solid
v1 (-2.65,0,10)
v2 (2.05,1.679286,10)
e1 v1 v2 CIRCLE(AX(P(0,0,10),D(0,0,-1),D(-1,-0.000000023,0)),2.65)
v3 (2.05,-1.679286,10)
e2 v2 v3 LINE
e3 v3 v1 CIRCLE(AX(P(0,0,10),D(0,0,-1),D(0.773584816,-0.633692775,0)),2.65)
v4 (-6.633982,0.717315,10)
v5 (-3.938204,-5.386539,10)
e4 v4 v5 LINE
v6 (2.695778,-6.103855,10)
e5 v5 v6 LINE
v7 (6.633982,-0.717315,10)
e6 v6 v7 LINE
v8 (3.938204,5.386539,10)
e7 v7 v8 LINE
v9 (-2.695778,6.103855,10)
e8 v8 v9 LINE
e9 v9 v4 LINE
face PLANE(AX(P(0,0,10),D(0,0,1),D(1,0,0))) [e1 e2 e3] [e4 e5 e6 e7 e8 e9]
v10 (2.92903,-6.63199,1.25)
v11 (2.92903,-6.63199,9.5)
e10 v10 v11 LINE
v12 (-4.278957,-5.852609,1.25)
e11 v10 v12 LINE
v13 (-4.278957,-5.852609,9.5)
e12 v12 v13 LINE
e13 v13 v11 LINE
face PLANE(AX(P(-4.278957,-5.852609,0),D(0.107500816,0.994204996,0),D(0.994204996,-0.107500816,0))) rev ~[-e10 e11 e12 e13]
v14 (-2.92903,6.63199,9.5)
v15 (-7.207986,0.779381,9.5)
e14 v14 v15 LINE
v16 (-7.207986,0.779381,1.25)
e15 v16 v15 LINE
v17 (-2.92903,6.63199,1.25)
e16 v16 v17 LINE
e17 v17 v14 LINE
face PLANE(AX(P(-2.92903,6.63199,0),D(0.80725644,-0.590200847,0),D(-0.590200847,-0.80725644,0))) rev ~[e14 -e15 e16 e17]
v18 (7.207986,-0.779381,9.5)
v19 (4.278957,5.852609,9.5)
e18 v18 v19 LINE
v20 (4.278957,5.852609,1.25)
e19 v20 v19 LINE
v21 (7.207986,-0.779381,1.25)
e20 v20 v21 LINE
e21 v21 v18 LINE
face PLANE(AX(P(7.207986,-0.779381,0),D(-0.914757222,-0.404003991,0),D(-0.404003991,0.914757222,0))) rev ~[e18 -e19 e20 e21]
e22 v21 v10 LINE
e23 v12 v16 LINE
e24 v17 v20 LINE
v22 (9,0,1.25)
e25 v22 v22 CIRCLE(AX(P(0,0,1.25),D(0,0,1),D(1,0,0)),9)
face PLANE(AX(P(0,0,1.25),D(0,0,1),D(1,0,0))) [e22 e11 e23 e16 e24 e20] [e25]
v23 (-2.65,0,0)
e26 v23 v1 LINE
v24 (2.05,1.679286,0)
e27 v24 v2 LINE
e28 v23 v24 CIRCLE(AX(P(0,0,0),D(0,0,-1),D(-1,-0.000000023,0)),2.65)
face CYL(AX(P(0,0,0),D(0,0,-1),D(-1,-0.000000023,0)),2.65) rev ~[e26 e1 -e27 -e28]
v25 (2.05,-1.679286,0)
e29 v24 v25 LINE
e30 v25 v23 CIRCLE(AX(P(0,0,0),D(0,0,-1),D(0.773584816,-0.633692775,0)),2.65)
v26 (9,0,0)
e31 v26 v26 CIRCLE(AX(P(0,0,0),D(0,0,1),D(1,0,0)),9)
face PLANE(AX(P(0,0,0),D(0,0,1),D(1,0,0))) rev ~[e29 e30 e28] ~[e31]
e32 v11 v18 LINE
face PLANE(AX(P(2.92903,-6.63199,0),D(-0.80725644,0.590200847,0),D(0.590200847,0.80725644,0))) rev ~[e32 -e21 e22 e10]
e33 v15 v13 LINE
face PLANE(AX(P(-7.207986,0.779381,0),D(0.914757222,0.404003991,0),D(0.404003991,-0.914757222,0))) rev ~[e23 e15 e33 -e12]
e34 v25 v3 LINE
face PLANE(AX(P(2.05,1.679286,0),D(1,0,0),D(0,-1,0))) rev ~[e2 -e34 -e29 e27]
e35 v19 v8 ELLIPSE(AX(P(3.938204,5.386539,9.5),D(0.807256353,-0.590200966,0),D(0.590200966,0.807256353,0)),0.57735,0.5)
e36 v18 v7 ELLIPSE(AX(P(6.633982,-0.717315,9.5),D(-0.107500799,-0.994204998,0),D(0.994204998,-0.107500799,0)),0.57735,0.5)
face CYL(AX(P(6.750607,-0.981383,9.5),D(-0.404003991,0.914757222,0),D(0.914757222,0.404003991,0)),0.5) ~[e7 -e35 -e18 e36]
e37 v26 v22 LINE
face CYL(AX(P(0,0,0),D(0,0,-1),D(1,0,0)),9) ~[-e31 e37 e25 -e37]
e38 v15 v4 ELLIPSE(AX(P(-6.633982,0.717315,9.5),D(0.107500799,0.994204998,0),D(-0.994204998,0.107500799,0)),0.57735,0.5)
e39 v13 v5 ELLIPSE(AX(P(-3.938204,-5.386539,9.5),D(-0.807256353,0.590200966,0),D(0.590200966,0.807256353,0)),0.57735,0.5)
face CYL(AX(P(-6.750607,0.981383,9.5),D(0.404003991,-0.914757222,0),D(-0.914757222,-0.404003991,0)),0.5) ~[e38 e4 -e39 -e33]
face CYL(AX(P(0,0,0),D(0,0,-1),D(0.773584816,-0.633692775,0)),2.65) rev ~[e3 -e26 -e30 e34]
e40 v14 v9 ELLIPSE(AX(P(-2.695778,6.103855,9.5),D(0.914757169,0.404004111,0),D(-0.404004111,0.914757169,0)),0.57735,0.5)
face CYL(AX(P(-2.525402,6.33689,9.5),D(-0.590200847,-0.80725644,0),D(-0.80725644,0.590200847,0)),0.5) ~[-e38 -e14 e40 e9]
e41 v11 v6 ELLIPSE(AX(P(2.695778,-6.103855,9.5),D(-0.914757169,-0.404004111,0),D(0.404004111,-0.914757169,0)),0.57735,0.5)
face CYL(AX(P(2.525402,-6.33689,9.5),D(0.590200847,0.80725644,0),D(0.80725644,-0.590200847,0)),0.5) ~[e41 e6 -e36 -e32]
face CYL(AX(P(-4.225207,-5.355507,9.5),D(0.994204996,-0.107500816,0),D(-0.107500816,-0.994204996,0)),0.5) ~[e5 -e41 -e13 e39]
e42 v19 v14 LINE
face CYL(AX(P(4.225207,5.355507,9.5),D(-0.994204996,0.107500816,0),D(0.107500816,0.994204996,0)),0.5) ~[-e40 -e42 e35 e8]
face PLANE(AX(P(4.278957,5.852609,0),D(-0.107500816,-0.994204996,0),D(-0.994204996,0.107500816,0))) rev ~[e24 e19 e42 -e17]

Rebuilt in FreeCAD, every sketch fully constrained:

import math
import FreeCAD as App
import Part
import Sketcher

V = App.Vector


def edges_at(feature, points):
    """Names of the edges that pass closest to the given points."""
    edges = feature.Shape.Edges
    near = lambda p: min(range(len(edges)), key=lambda i: edges[i].distToShape(Part.Vertex(*p))[0])
    return sorted({f"Edge{near(p) + 1}" for p in points})

doc = App.newDocument("Part")
body = doc.addObject("PartDesign::Body", "Body")

# Sketch on XY plane
sketch1 = doc.addObject("Sketcher::SketchObject", "Sketch")
body.addObject(sketch1)
sketch1.AttachmentSupport = (doc.XY_Plane, [""])
sketch1.MapMode = "FlatFace"
sketch1.addGeometry([
    Part.LineSegment(V(-7.2, 0.8, 0), V(-4.3, -5.9, 0)),  # 0
    Part.LineSegment(V(-4.3, -5.9, 0), V(2.9, -6.6, 0)),  # 1
    Part.LineSegment(V(2.9, -6.6, 0), V(7.2, -0.8, 0)),  # 2
    Part.LineSegment(V(7.2, -0.8, 0), V(4.3, 5.9, 0)),  # 3
    Part.LineSegment(V(4.3, 5.9, 0), V(-2.9, 6.6, 0)),  # 4
    Part.LineSegment(V(-2.9, 6.6, 0), V(-7.2, 0.8, 0)),  # 5
    Part.ArcOfCircle(Part.Circle(V(0, 0, 0), V(0, 0, 1), 2.7), math.radians(39), math.radians(180)),  # 6
    Part.LineSegment(V(2, 1.7, 0), V(2, -1.7, 0)),  # 7
    Part.ArcOfCircle(Part.Circle(V(0, 0, 0), V(0, 0, 1), 2.7), math.radians(180), math.radians(321)),  # 8
], False)
sketch1.addConstraint([
    Sketcher.Constraint("Coincident", 0, 2, 1, 1),
    Sketcher.Constraint("Coincident", 1, 2, 2, 1),
    Sketcher.Constraint("Coincident", 2, 2, 3, 1),
    Sketcher.Constraint("Coincident", 3, 2, 4, 1),
    Sketcher.Constraint("Coincident", 4, 2, 5, 1),
    Sketcher.Constraint("Coincident", 5, 2, 0, 1),
    Sketcher.Constraint("Coincident", 6, 1, 7, 1),
    Sketcher.Constraint("Coincident", 7, 2, 8, 2),
    Sketcher.Constraint("Tangent", 8, 1, 6, 2),
    Sketcher.Constraint("Vertical", 7),
    Sketcher.Constraint("Coincident", 6, 3, -1, 1),
    Sketcher.Constraint("Equal", 6, 8),
    Sketcher.Constraint("Symmetric", 0, 2, 3, 2, -1, 1),
    Sketcher.Constraint("Symmetric", 1, 2, 4, 2, -1, 1),
    Sketcher.Constraint("Symmetric", 2, 2, 5, 2, -1, 1),
    Sketcher.Constraint("PointOnObject", 8, 1, -1),
    Sketcher.Constraint("Equal", 0, 1),
    Sketcher.Constraint("Equal", 1, 2),
    Sketcher.Constraint("Radius", 6, 2.65),
    Sketcher.Constraint("DistanceX", 8, 1, 7, 2, 4.7),
    Sketcher.Constraint("Distance", 0, 7.25),
    Sketcher.Constraint("DistanceY", 1, 2, 3, 2, 12.484599),
    Sketcher.Constraint("DistanceY", 0, 2, -1, 1, 5.852609),
    Sketcher.Constraint("DistanceX", -1, 1, 1, 2, 2.92903),
])
pad1 = doc.addObject("PartDesign::Pad", "Pad")
body.addObject(pad1)
pad1.Profile = sketch1
pad1.Length = 10

# Sketch on XY plane
sketch2 = doc.addObject("Sketcher::SketchObject", "Sketch001")
body.addObject(sketch2)
sketch2.AttachmentSupport = (doc.XY_Plane, [""])
sketch2.MapMode = "FlatFace"
sketch2.addGeometry([
    Part.Circle(V(0, 0, 0), V(0, 0, 1), 9),  # 0
    Part.LineSegment(V(7, -1, 0), V(3, -7, 0)),  # 1
    Part.LineSegment(V(3, -7, 0), V(-4, -6, 0)),  # 2
    Part.LineSegment(V(-4, -6, 0), V(-7, 1, 0)),  # 3
    Part.LineSegment(V(-7, 1, 0), V(-3, 7, 0)),  # 4
    Part.LineSegment(V(-3, 7, 0), V(4, 6, 0)),  # 5
    Part.LineSegment(V(4, 6, 0), V(7, -1, 0)),  # 6
], False)
sketch2.addConstraint([
    Sketcher.Constraint("Coincident", 1, 2, 2, 1),
    Sketcher.Constraint("Coincident", 2, 2, 3, 1),
    Sketcher.Constraint("Coincident", 3, 2, 4, 1),
    Sketcher.Constraint("Coincident", 4, 2, 5, 1),
    Sketcher.Constraint("Coincident", 5, 2, 6, 1),
    Sketcher.Constraint("Coincident", 6, 2, 1, 1),
    Sketcher.Constraint("Coincident", 0, 3, -1, 1),
    Sketcher.Constraint("Symmetric", 1, 2, 4, 2, -1, 1),
    Sketcher.Constraint("Symmetric", 2, 2, 5, 2, -1, 1),
    Sketcher.Constraint("Symmetric", 3, 2, 6, 2, -1, 1),
    Sketcher.Constraint("Equal", 1, 2),
    Sketcher.Constraint("Equal", 2, 3),
    Sketcher.Constraint("Diameter", 0, 18.0),
    Sketcher.Constraint("Distance", 1, 7.25),
    Sketcher.Constraint("DistanceY", 2, 2, 4, 2, 12.484599),
    Sketcher.Constraint("DistanceX", -1, 1, 1, 2, 2.92903),
    Sketcher.Constraint("DistanceY", 1, 2, -1, 1, 6.63199),
])
pad2 = doc.addObject("PartDesign::Pad", "Pad001")
body.addObject(pad2)
pad2.Profile = sketch2
pad2.Length = 1.25
doc.recompute()

fillet = doc.addObject("PartDesign::Fillet", "Fillet")
body.addObject(fillet)
fillet.Base = (pad2, edges_at(pad2, [
    (-0.675, -6.242, 10),
    (5.069, -3.706, 10),
    (5.743, 2.537, 10),
    (0.675, 6.242, 10),
    (-5.069, 3.706, 10),
    (-5.743, -2.537, 10),
]))
fillet.Radius = 0.5

doc.recompute()
